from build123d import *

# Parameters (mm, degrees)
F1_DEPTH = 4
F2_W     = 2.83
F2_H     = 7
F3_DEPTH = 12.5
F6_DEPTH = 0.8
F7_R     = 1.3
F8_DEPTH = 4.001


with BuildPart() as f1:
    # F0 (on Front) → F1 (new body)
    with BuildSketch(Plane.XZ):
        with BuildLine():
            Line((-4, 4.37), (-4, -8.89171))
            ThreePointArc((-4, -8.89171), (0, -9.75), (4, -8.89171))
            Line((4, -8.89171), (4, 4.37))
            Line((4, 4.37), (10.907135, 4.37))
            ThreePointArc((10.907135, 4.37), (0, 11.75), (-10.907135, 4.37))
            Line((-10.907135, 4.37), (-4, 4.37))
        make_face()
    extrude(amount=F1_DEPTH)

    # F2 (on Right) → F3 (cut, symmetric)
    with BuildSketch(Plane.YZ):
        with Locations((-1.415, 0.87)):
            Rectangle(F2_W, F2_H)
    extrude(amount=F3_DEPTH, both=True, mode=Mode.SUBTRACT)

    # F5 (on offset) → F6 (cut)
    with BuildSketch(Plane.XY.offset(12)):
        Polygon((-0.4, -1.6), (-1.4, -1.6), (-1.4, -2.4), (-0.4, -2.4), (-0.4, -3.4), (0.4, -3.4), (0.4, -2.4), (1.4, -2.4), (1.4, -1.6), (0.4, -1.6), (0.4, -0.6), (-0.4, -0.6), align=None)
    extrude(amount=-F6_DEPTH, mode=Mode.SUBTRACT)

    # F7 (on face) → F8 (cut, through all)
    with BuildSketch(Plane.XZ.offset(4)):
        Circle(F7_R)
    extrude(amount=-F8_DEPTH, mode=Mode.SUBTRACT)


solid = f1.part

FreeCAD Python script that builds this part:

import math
import FreeCAD as App
import Part
import Sketcher
from FreeCAD import Vector


def add_polygon(sketch, points):
    """Adds a closed chain of lines whose ends are joined by coincident constraints."""
    first, n = sketch.GeometryCount, len(points)
    for a, b in zip(points, points[1:] + points[:1]):
        sketch.addGeometry(Part.LineSegment(App.Vector(*a, 0), App.Vector(*b, 0)), False)
    for i in range(n):
        sketch.addConstraint(Sketcher.Constraint("Coincident", first + i, 2, first + (i + 1) % n, 1))

doc = App.newDocument("Part")
params = doc.addObject("Spreadsheet::Sheet", "Params")
for row, (alias, value) in enumerate([
    ("sketch1_radius", "11.75 mm"),
    ("pad1_length", "4 mm"),
    ("sketch2_height", "7 mm"),
    ("sketch2_width", "2.83 mm"),
    ("pocket1_length", "25 mm"),
    ("sketch3_width", "1 mm"),
    ("sketch3_width2", "0.8 mm"),
    ("pocket2_length", "0.8 mm"),
    ("sketch4_diameter", "2.6 mm"),
], start=1):
    params.set(f"A{row}", alias)
    params.set(f"B{row}", "=" + value)
    params.setAlias(f"B{row}", alias)

body = doc.addObject("PartDesign::Body", "Body")

sketch1 = body.newObject("Sketcher::SketchObject", "Sketch")
sketch1.AttachmentSupport = (doc.getObject("XZ_Plane"), [""])
sketch1.MapMode = "FlatFace"
sketch1.addGeometry(Part.LineSegment(Vector(-4, 4.37, 0), Vector(-4, -8.89171, 0)), False)
sketch1.addGeometry(Part.ArcOfCircle(Part.Circle(Vector(0, 0.000004, 0), Vector(0, 0, 1), 9.750004), math.radians(-114.220933), math.radians(-65.779067)), False)
sketch1.addGeometry(Part.LineSegment(Vector(4, -8.89171, 0), Vector(4, 4.37, 0)), False)
sketch1.addGeometry(Part.LineSegment(Vector(4, 4.37, 0), Vector(10.907135, 4.37, 0)), False)
sketch1.addGeometry(Part.ArcOfCircle(Part.Circle(Vector(0, 0, 0), Vector(0, 0, 1), 11.75), math.radians(21.833761), math.radians(158.166239)), False)
sketch1.addGeometry(Part.LineSegment(Vector(-10.907135, 4.37, 0), Vector(-4, 4.37, 0)), False)
sketch1.addConstraint(Sketcher.Constraint("Coincident", 0, 2, 1, 1))
sketch1.addConstraint(Sketcher.Constraint("Coincident", 1, 2, 2, 1))
sketch1.addConstraint(Sketcher.Constraint("Coincident", 2, 2, 3, 1))
sketch1.addConstraint(Sketcher.Constraint("Coincident", 3, 2, 4, 1))
sketch1.addConstraint(Sketcher.Constraint("Coincident", 4, 2, 5, 1))
sketch1.addConstraint(Sketcher.Constraint("Coincident", 5, 2, 0, 1))
sketch1.addConstraint(Sketcher.Constraint("Vertical", 0))
sketch1.addConstraint(Sketcher.Constraint("Vertical", 2))
sketch1.addConstraint(Sketcher.Constraint("Horizontal", 3))
sketch1.addConstraint(Sketcher.Constraint("Horizontal", 5))
sketch1.addConstraint(Sketcher.Constraint("Coincident", 1, 3, -1, 1))
sketch1.addConstraint(Sketcher.Constraint("Coincident", 4, 3, -1, 1))
sketch1.addConstraint(Sketcher.Constraint("Symmetric", 2, 2, 5, 2, -2))
sketch1.addConstraint(Sketcher.Constraint("Radius", 4, 11.75))
sketch1.addConstraint(Sketcher.Constraint("DistanceX", 0, 2, -1, 1, 4.0))
sketch1.addConstraint(Sketcher.Constraint("DistanceY", -1, 1, 2, 2, 4.37))
sketch1.addConstraint(Sketcher.Constraint("Radius", 1, 9.750004))
sketch1.setExpression("Constraints[13]", "Params.sketch1_radius")
pad1 = body.newObject("PartDesign::Pad", "Pad")
pad1.Profile = sketch1
pad1.setExpression("Length", "Params.pad1_length")

sketch2 = body.newObject("Sketcher::SketchObject", "Sketch001")
sketch2.AttachmentSupport = (doc.getObject("YZ_Plane"), [""])
sketch2.MapMode = "FlatFace"
add_polygon(sketch2, [(-2.83, 4.37), (-2.83, -2.63), (0, -2.63), (0, 4.37)])
sketch2.addConstraint(Sketcher.Constraint("Vertical", 0))
sketch2.addConstraint(Sketcher.Constraint("Horizontal", 1))
sketch2.addConstraint(Sketcher.Constraint("Vertical", 2))
sketch2.addConstraint(Sketcher.Constraint("Horizontal", 3))
sketch2.addConstraint(Sketcher.Constraint("PointOnObject", 1, 2, -2))
sketch2.addConstraint(Sketcher.Constraint("DistanceY", 0, 2, 0, 1, 7.0))
sketch2.addConstraint(Sketcher.Constraint("DistanceX", 1, 1, 1, 2, 2.83))
sketch2.addConstraint(Sketcher.Constraint("DistanceY", 0, 2, -1, 1, 2.63))
sketch2.setExpression("Constraints[9]", "Params.sketch2_height")
sketch2.setExpression("Constraints[10]", "Params.sketch2_width")
pocket1 = body.newObject("PartDesign::Pocket", "Pocket")
pocket1.Profile = sketch2
pocket1.setExpression("Length", "Params.pocket1_length")
pocket1.Midplane = True

sketch3 = body.newObject("Sketcher::SketchObject", "Sketch002")
sketch3.AttachmentSupport = (doc.getObject("XY_Plane"), [""])
sketch3.MapMode = "FlatFace"
sketch3.AttachmentOffset = App.Placement(Vector(0, 0, 12), App.Rotation())
add_polygon(sketch3, [(-0.4, -1.6), (-1.4, -1.6), (-1.4, -2.4), (-0.4, -2.4), (-0.4, -3.4), (0.4, -3.4), (0.4, -2.4), (1.4, -2.4), (1.4, -1.6), (0.4, -1.6), (0.4, -0.6), (-0.4, -0.6)])
sketch3.addConstraint(Sketcher.Constraint("Horizontal", 0))
sketch3.addConstraint(Sketcher.Constraint("Vertical", 1))
sketch3.addConstraint(Sketcher.Constraint("Horizontal", 2))
sketch3.addConstraint(Sketcher.Constraint("Vertical", 3))
sketch3.addConstraint(Sketcher.Constraint("Horizontal", 4))
sketch3.addConstraint(Sketcher.Constraint("Vertical", 5))
sketch3.addConstraint(Sketcher.Constraint("Horizontal", 6))
sketch3.addConstraint(Sketcher.Constraint("Vertical", 7))
sketch3.addConstraint(Sketcher.Constraint("Horizontal", 8))
sketch3.addConstraint(Sketcher.Constraint("Vertical", 9))
sketch3.addConstraint(Sketcher.Constraint("Horizontal", 10))
sketch3.addConstraint(Sketcher.Constraint("Vertical", 11))
sketch3.addConstraint(Sketcher.Constraint("Symmetric", 2, 2, 5, 2, -2))
sketch3.addConstraint(Sketcher.Constraint("Symmetric", 0, 2, 7, 2, -2))
sketch3.addConstraint(Sketcher.Constraint("Vertical", 5, 2, 8, 2))
sketch3.addConstraint(Sketcher.Constraint("Vertical", 3, 2, 10, 2))
sketch3.addConstraint(Sketcher.Constraint("Equal", 10, 1))
sketch3.addConstraint(Sketcher.Constraint("Equal", 8, 3))
sketch3.addConstraint(Sketcher.Constraint("Equal", 5, 9))
sketch3.addConstraint(Sketcher.Constraint("DistanceX", 0, 2, 0, 1, 1.0))
sketch3.addConstraint(Sketcher.Constraint("DistanceX", 4, 1, 4, 2, 0.8))
sketch3.addConstraint(Sketcher.Constraint("DistanceY", 0, 2, -1, 1, 1.6))
sketch3.setExpression("Constraints[31]", "Params.sketch3_width")
sketch3.setExpression("Constraints[32]", "Params.sketch3_width2")
pocket2 = body.newObject("PartDesign::Pocket", "Pocket001")
pocket2.Profile = sketch3
pocket2.setExpression("Length", "Params.pocket2_length")

sketch4 = body.newObject("Sketcher::SketchObject", "Sketch003")
sketch4.AttachmentSupport = (doc.getObject("XZ_Plane"), [""])
sketch4.MapMode = "FlatFace"
sketch4.AttachmentOffset = App.Placement(Vector(0, 0, 4), App.Rotation())
sketch4.addGeometry(Part.Circle(Vector(0, 0, 0), Vector(0, 0, 1), 1.3), False)
sketch4.addConstraint(Sketcher.Constraint("Coincident", 0, 3, -1, 1))
sketch4.addConstraint(Sketcher.Constraint("Diameter", 0, 2.6))
sketch4.setExpression("Constraints[1]", "Params.sketch4_diameter")
pocket3 = body.newObject("PartDesign::Pocket", "Pocket002")
pocket3.Profile = sketch4
pocket3.Type = "ThroughAll"

doc.recompute()
